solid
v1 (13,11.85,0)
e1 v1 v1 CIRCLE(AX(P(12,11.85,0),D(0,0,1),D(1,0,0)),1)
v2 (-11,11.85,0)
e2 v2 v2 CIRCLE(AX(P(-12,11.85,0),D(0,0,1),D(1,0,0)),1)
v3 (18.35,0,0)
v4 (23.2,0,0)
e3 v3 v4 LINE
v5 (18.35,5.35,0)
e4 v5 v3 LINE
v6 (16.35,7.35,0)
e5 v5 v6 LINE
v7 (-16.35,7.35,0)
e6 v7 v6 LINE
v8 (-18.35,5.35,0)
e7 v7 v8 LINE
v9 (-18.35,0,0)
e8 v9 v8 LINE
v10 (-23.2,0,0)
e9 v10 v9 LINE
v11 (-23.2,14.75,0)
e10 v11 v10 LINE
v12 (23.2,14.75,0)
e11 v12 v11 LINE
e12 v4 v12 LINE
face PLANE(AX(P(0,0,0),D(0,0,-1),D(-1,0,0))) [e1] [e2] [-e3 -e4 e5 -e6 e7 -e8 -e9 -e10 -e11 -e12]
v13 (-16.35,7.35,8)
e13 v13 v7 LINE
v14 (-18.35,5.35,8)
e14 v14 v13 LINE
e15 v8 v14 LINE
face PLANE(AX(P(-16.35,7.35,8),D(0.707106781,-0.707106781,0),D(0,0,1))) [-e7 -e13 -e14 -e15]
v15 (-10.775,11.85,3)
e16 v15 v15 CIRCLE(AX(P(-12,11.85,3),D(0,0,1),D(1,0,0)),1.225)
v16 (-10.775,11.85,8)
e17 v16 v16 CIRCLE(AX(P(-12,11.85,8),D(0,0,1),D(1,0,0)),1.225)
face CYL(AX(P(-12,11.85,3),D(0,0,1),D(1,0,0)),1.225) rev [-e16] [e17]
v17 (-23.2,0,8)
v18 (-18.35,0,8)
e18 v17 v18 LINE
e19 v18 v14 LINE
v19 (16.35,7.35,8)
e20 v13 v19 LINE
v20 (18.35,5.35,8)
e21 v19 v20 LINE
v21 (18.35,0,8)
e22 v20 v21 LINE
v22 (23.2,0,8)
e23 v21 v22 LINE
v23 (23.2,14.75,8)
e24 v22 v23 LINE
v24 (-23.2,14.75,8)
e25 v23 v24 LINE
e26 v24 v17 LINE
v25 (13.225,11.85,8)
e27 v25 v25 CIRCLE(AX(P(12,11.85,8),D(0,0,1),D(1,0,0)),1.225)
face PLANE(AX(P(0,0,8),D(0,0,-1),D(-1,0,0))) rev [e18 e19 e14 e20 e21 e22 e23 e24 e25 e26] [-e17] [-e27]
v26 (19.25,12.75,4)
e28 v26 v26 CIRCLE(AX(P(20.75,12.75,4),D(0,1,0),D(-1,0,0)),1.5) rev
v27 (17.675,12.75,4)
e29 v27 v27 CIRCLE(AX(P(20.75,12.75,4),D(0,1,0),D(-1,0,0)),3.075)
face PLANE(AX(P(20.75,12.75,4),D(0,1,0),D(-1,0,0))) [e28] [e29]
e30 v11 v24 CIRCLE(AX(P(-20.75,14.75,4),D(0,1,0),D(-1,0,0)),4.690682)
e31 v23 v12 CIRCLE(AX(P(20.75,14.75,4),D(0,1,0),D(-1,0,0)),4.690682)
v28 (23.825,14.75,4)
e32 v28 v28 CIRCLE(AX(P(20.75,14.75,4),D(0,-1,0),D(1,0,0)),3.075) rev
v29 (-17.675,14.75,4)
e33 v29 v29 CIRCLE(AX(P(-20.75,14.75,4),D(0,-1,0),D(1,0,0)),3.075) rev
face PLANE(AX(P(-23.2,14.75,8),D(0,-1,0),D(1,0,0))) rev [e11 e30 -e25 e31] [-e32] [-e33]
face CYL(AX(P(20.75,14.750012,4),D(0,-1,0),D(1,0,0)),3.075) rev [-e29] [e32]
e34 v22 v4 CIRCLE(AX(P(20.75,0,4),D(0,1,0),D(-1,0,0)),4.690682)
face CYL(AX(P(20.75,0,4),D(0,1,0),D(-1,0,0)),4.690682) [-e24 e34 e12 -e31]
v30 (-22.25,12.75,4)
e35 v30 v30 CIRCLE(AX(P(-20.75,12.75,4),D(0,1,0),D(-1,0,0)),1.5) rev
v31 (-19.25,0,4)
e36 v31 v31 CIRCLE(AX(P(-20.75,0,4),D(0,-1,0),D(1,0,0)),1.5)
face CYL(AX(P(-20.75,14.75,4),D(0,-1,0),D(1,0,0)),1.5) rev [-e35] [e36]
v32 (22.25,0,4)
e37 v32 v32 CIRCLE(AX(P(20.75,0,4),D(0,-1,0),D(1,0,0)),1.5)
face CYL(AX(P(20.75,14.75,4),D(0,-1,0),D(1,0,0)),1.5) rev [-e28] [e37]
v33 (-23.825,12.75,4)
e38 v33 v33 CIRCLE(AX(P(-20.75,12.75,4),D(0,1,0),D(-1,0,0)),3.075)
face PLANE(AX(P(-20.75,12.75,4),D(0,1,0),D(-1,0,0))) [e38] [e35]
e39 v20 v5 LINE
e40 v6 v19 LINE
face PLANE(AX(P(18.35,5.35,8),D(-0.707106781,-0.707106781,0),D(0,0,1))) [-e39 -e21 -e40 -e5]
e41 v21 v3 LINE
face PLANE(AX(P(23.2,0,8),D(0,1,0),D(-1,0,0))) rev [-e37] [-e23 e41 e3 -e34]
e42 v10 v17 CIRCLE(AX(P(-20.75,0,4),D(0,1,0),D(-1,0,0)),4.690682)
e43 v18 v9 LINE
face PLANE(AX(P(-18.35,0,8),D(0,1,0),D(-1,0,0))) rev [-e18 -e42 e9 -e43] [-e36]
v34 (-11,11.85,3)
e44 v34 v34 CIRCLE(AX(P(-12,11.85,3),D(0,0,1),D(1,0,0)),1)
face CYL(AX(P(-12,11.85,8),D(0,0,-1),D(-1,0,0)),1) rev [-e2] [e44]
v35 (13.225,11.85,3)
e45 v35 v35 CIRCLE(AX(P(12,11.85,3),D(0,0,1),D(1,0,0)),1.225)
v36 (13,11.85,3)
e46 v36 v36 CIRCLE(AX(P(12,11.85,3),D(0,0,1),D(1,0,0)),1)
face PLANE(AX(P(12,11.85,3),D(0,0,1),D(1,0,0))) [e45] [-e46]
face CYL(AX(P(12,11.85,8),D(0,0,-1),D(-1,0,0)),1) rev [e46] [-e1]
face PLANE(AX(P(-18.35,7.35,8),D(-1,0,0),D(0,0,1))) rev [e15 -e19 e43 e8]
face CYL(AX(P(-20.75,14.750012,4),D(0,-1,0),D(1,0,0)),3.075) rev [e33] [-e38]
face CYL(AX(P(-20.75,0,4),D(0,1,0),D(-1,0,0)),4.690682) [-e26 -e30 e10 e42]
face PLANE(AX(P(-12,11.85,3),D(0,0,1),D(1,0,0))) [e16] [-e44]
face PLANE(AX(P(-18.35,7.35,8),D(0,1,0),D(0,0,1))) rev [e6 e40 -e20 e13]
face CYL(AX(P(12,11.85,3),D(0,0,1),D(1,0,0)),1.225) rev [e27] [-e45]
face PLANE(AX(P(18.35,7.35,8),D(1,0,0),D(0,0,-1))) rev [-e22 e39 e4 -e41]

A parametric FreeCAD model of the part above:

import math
import FreeCAD as App
import Part
import Sketcher


def edges_at(feature, points):
    """Names of the edges that pass closest to the given points."""
    edges = feature.Shape.Edges
    near = lambda p: min(range(len(edges)), key=lambda i: edges[i].distToShape(Part.Vertex(*p))[0])
    return sorted({f"Edge{near(p) + 1}" for p in points})

doc = App.newDocument("Part")
body = doc.addObject("PartDesign::Body", "Body")

sketch1 = body.newObject("Sketcher::SketchObject", "Sketch")
sketch1.AttachmentSupport = (doc.getObject("XY_Plane"), [""])
sketch1.MapMode = "FlatFace"
sketch1.addGeometry([
    Part.LineSegment(App.Vector(18.4, 7.3, 0), App.Vector(18.4, 0, 0)),
    Part.LineSegment(App.Vector(18.4, 0, 0), App.Vector(23.2, 0, 0)),
    Part.LineSegment(App.Vector(23.2, 0, 0), App.Vector(23.2, 14.8, 0)),
    Part.LineSegment(App.Vector(23.2, 14.8, 0), App.Vector(-23.2, 14.8, 0)),
    Part.LineSegment(App.Vector(-23.2, 14.8, 0), App.Vector(-23.2, 0, 0)),
    Part.LineSegment(App.Vector(-23.2, 0, 0), App.Vector(-18.4, 0, 0)),
    Part.LineSegment(App.Vector(-18.4, 0, 0), App.Vector(-18.4, 7.3, 0)),
    Part.LineSegment(App.Vector(-18.4, 7.3, 0), App.Vector(18.4, 7.3, 0)),
    Part.Circle(App.Vector(-12, 11.8, 0), App.Vector(0, 0, 1), 1),
    Part.Circle(App.Vector(12, 11.8, 0), App.Vector(0, 0, 1), 1),
], False)
sketch1.addConstraint([
    Sketcher.Constraint("Coincident", 0, 2, 1, 1),
    Sketcher.Constraint("Coincident", 1, 2, 2, 1),
    Sketcher.Constraint("Coincident", 2, 2, 3, 1),
    Sketcher.Constraint("Coincident", 3, 2, 4, 1),
    Sketcher.Constraint("Coincident", 4, 2, 5, 1),
    Sketcher.Constraint("Coincident", 5, 2, 6, 1),
    Sketcher.Constraint("Coincident", 6, 2, 7, 1),
    Sketcher.Constraint("Coincident", 7, 2, 0, 1),
    Sketcher.Constraint("Vertical", 0),
    Sketcher.Constraint("Horizontal", 1),
    Sketcher.Constraint("Vertical", 2),
    Sketcher.Constraint("Horizontal", 3),
    Sketcher.Constraint("Vertical", 4),
    Sketcher.Constraint("Horizontal", 5),
    Sketcher.Constraint("Vertical", 6),
    Sketcher.Constraint("Horizontal", 7),
    Sketcher.Constraint("Equal", 8, 9),
    Sketcher.Constraint("Symmetric", 1, 2, 4, 2, -1, 1),
    Sketcher.Constraint("Symmetric", 8, 3, 9, 3, -2),
    Sketcher.Constraint("Symmetric", 0, 2, 5, 2, -2),
    Sketcher.Constraint("Diameter", 8, 2.0),
    Sketcher.Constraint("DistanceX", 3, 2, 3, 1, 46.4),
    Sketcher.Constraint("DistanceX", 7, 1, 7, 2, 36.7),
    Sketcher.Constraint("DistanceX", 8, 3, -1, 1, 12.0),
    Sketcher.Constraint("DistanceY", 0, 2, 0, 1, 7.35),
    Sketcher.Constraint("DistanceY", 2, 1, 2, 2, 14.75),
    Sketcher.Constraint("DistanceY", 9, 3, 2, 2, 2.9),
])
pad1 = body.newObject("PartDesign::Pad", "Pad")
pad1.Profile = sketch1
pad1.Length = 8

sketch2 = body.newObject("Sketcher::SketchObject", "Sketch001")
sketch2.AttachmentSupport = (doc.getObject("XZ_Plane"), [""])
sketch2.MapMode = "FlatFace"
sketch2.addGeometry([
    Part.Circle(App.Vector(-20.8, 4, 0), App.Vector(0, 0, 1), 1.5),
    Part.Circle(App.Vector(20.8, 4, 0), App.Vector(0, 0, 1), 1.5),
], False)
sketch2.addConstraint([
    Sketcher.Constraint("Equal", 0, 1),
    Sketcher.Constraint("Symmetric", 0, 3, 1, 3, -2),
    Sketcher.Constraint("Diameter", 0, 3.0),
    Sketcher.Constraint("DistanceY", -1, 1, 0, 3, 4.0),
    Sketcher.Constraint("DistanceX", 0, 3, 1, 3, 41.5),
])
pocket1 = body.newObject("PartDesign::Pocket", "Pocket")
pocket1.Profile = sketch2
pocket1.Type = "ThroughAll"

sketch3 = body.newObject("Sketcher::SketchObject", "Sketch002")
sketch3.AttachmentSupport = (doc.getObject("XZ_Plane"), [""])
sketch3.MapMode = "FlatFace"
sketch3.AttachmentOffset = App.Placement(App.Vector(0, 0, -14.75), App.Rotation())
sketch3.addGeometry([
    Part.LineSegment(App.Vector(23.2, 0, 0), App.Vector(23.2, 8, 0)),
    Part.ArcOfCircle(Part.Circle(App.Vector(20.8, 4, 0), App.Vector(0, 0, 1), 4.7), math.radians(-59), math.radians(59)),
    Part.LineSegment(App.Vector(-23.2, 8, 0), App.Vector(-23.2, 0, 0)),
    Part.ArcOfCircle(Part.Circle(App.Vector(-20.8, 4, 0), App.Vector(0, 0, 1), 4.7), math.radians(121), math.radians(239)),
], False)
sketch3.addConstraint([
    Sketcher.Constraint("Coincident", 0, 1, 1, 1),
    Sketcher.Constraint("Coincident", 1, 2, 0, 2),
    Sketcher.Constraint("Coincident", 2, 1, 3, 1),
    Sketcher.Constraint("Coincident", 3, 2, 2, 2),
    Sketcher.Constraint("Vertical", 0),
    Sketcher.Constraint("Vertical", 2),
    Sketcher.Constraint("Equal", 1, 3),
    Sketcher.Constraint("Symmetric", 0, 1, 3, 2, -1, 1),
    Sketcher.Constraint("Symmetric", 1, 3, 3, 3, -2),
    Sketcher.Constraint("DistanceY", 0, 1, 0, 2, 8.0),
    Sketcher.Constraint("DistanceX", -1, 1, 0, 1, 23.2),
    Sketcher.Constraint("DistanceX", 3, 3, 1, 3, 41.5),
])
pad2 = body.newObject("PartDesign::Pad", "Pad001")
pad2.Profile = sketch3
pad2.Length = 14.75

sketch4 = body.newObject("Sketcher::SketchObject", "Sketch003")
sketch4.AttachmentSupport = (doc.getObject("XZ_Plane"), [""])
sketch4.MapMode = "FlatFace"
sketch4.AttachmentOffset = App.Placement(App.Vector(0, 0, -14.75), App.Rotation())
sketch4.addGeometry([
    Part.Circle(App.Vector(20.8, 4, 0), App.Vector(0, 0, 1), 3.1),
    Part.Circle(App.Vector(-20.8, 4, 0), App.Vector(0, 0, 1), 3.1),
], False)
sketch4.addConstraint([
    Sketcher.Constraint("Equal", 0, 1),
    Sketcher.Constraint("Symmetric", 0, 3, 1, 3, -2),
    Sketcher.Constraint("Diameter", 0, 6.15),
    Sketcher.Constraint("DistanceY", -1, 1, 0, 3, 4.0),
    Sketcher.Constraint("DistanceX", 1, 3, 0, 3, 41.5),
])
pocket2 = body.newObject("PartDesign::Pocket", "Pocket001")
pocket2.Profile = sketch4
pocket2.Type = "TwoLengths"
pocket2.Length = 1
pocket2.Length2 = 2
doc.recompute()

chamfer = body.newObject("PartDesign::Chamfer", "Chamfer")
chamfer.Base = (pocket2, edges_at(pocket2, [(-18.35, 7.35, 4), (18.35, 7.35, 4)]))
chamfer.Size = 2

sketch5 = body.newObject("Sketcher::SketchObject", "Sketch004")
sketch5.AttachmentSupport = (doc.getObject("XY_Plane"), [""])
sketch5.MapMode = "FlatFace"
sketch5.AttachmentOffset = App.Placement(App.Vector(0, 0, 8), App.Rotation())
sketch5.addGeometry([
    Part.Circle(App.Vector(-12, 11.8, 0), App.Vector(0, 0, 1), 1.2),
    Part.Circle(App.Vector(12, 11.8, 0), App.Vector(0, 0, 1), 1.2),
], False)
sketch5.addConstraint([
    Sketcher.Constraint("Equal", 0, 1),
    Sketcher.Constraint("Symmetric", 0, 3, 1, 3, -2),
    Sketcher.Constraint("Diameter", 0, 2.45),
    Sketcher.Constraint("DistanceX", 0, 3, -1, 1, 12.0),
    Sketcher.Constraint("DistanceY", -1, 1, 0, 3, 11.85),
])
pocket3 = body.newObject("PartDesign::Pocket", "Pocket002")
pocket3.Profile = sketch5
pocket3.Length = 5

doc.recompute()
